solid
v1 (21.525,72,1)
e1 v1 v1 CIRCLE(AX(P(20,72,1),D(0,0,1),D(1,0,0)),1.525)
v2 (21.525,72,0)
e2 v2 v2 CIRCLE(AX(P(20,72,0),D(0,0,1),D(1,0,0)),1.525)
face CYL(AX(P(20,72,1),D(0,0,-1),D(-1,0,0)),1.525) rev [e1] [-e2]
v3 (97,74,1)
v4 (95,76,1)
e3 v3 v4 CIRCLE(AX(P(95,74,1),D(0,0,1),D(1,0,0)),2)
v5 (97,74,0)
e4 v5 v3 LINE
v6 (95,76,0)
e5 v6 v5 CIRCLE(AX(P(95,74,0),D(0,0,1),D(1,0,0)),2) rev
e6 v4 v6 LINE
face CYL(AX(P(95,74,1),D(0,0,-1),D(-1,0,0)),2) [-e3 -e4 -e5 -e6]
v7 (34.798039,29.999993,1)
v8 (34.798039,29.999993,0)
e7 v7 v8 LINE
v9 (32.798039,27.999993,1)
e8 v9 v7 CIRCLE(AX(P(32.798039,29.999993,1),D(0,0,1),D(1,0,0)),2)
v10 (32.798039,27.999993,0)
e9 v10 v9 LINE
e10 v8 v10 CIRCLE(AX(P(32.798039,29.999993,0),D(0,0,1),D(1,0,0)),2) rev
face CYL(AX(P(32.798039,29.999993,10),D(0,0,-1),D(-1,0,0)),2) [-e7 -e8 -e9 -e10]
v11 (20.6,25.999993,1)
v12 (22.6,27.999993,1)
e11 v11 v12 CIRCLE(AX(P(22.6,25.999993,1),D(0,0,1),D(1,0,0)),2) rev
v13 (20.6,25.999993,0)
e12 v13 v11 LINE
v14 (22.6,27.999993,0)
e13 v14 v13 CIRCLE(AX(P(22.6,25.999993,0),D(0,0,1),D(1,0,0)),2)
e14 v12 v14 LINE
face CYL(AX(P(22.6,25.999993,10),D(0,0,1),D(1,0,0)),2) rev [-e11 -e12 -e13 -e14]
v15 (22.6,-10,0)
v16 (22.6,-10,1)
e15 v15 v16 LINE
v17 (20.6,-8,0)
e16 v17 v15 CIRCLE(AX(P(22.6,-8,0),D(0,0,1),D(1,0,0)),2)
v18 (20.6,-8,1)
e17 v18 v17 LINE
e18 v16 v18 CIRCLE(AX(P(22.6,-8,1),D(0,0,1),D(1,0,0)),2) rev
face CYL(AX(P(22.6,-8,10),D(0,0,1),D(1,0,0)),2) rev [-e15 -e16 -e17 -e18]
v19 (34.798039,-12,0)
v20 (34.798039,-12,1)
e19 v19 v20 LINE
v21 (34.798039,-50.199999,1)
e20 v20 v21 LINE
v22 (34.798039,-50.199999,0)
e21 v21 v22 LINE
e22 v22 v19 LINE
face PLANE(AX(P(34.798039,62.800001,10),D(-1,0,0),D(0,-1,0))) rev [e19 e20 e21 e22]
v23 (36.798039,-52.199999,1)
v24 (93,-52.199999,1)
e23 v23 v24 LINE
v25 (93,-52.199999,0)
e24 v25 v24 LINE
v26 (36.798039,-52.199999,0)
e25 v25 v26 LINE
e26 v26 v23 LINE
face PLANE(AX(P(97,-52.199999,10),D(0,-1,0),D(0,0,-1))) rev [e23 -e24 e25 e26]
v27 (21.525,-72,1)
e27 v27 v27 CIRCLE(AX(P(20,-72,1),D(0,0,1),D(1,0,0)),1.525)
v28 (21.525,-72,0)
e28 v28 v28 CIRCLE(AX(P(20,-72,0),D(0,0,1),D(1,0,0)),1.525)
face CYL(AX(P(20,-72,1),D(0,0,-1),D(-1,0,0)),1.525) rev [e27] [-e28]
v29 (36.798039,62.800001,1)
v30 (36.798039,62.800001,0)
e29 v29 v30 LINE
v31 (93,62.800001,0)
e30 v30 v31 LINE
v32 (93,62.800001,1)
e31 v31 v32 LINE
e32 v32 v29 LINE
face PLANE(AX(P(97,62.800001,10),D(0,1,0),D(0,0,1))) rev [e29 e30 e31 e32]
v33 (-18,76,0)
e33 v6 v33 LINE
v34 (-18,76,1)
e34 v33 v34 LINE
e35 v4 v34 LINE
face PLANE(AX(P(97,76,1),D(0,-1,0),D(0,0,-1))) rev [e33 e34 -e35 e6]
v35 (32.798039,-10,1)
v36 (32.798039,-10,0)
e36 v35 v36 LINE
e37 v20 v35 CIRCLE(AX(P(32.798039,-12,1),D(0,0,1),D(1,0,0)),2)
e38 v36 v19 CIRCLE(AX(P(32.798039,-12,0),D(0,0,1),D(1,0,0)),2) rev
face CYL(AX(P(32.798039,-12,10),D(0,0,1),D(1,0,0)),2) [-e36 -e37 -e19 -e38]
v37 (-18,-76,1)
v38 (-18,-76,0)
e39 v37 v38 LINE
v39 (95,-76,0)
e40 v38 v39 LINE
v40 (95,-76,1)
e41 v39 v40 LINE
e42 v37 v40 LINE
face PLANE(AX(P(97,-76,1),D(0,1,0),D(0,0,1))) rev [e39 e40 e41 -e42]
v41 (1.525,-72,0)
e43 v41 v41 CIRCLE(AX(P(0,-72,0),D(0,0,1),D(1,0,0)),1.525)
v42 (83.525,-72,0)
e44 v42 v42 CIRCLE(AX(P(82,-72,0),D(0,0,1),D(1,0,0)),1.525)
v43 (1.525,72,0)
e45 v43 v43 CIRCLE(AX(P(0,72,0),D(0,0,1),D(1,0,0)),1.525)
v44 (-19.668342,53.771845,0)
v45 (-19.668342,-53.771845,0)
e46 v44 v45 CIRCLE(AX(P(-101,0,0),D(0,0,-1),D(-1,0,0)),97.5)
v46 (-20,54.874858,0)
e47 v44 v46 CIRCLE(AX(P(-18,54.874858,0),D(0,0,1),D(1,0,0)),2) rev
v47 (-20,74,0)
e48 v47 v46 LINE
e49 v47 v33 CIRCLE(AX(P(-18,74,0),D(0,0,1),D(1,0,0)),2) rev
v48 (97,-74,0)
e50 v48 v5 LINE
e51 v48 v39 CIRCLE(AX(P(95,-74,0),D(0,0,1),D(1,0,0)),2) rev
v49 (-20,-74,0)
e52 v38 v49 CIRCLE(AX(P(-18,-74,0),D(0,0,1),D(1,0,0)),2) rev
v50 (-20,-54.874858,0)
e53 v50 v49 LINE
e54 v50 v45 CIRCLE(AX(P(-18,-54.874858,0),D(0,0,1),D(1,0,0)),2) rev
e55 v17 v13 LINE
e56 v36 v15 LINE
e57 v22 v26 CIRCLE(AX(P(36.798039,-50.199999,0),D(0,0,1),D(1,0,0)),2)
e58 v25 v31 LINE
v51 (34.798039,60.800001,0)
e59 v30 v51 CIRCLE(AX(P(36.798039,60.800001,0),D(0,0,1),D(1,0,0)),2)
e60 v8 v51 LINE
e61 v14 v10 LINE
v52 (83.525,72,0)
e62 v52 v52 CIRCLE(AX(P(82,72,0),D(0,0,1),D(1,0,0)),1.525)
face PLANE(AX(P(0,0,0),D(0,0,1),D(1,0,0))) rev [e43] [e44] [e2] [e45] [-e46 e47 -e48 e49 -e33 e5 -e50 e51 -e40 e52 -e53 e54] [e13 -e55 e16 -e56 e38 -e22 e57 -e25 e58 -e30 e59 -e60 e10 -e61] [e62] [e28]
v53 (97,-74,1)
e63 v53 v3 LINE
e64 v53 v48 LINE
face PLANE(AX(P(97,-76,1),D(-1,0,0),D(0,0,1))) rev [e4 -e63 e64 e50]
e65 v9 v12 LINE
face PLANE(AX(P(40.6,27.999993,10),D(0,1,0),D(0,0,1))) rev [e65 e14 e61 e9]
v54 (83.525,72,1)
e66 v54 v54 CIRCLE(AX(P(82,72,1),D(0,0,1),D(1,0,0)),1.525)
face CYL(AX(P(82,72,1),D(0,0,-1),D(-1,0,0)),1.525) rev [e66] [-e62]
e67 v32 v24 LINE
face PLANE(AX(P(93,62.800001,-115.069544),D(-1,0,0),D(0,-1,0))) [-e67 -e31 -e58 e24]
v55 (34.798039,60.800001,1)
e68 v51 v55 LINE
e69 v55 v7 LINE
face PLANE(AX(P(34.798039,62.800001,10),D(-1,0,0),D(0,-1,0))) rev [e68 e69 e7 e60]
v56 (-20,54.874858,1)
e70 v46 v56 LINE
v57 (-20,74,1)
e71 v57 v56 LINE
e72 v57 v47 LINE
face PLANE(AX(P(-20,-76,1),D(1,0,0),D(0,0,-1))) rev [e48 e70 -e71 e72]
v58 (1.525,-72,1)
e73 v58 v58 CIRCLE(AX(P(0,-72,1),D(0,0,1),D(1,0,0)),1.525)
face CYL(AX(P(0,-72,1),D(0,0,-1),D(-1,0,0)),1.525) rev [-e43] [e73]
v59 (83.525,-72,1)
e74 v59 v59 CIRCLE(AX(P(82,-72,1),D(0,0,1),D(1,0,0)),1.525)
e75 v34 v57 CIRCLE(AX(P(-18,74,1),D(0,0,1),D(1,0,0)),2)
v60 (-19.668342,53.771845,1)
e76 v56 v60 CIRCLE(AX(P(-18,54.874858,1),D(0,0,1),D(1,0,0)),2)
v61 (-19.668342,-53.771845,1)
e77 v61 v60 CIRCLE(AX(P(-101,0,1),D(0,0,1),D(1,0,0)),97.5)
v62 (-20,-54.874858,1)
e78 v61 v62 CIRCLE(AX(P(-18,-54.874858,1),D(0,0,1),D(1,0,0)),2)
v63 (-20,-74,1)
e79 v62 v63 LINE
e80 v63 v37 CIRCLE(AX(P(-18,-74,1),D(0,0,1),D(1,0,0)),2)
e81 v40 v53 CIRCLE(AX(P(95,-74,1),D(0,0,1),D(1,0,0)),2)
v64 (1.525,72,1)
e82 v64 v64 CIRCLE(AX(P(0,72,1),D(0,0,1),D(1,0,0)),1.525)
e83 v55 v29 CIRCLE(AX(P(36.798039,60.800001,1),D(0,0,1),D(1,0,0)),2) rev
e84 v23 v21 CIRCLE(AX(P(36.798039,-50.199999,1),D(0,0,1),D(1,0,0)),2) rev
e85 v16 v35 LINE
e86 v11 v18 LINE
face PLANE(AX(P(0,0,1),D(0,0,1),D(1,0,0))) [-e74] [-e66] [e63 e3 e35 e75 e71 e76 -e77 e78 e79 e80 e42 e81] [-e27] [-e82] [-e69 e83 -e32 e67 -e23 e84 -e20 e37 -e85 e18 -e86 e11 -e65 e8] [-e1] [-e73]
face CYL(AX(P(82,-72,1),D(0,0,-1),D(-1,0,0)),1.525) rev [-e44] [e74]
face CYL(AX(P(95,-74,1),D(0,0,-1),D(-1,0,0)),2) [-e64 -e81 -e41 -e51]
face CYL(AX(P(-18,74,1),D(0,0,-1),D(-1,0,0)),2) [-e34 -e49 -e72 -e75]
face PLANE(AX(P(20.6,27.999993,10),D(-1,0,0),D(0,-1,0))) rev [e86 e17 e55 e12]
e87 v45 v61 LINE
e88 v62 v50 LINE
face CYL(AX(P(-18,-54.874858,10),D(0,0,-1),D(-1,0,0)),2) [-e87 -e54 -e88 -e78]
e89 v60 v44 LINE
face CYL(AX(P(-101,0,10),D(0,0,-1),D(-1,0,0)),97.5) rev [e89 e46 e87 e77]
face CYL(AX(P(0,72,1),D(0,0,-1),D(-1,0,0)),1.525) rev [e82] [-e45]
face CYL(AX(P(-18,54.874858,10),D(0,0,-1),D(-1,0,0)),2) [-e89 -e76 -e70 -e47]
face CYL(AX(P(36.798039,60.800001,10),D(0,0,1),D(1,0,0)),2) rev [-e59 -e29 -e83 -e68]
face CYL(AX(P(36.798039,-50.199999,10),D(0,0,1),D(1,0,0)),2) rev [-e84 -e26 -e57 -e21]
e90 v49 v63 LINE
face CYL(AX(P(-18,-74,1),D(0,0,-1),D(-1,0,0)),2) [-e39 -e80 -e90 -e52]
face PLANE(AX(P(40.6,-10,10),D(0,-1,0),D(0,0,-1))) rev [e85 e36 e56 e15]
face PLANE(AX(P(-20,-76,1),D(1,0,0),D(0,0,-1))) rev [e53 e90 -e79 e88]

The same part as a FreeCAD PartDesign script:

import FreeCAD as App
import Part
import Sketcher
from FreeCAD import Vector


def edges_at(feature, points):
    """Names of the edges that pass closest to the given points."""
    edges = feature.Shape.Edges
    near = lambda p: min(range(len(edges)), key=lambda i: edges[i].distToShape(Part.Vertex(*p))[0])
    return sorted({f"Edge{near(p) + 1}" for p in points})


def add_polygon(sketch, points):
    """Adds a closed chain of lines whose ends are joined by coincident constraints."""
    first, n = sketch.GeometryCount, len(points)
    for a, b in zip(points, points[1:] + points[:1]):
        sketch.addGeometry(Part.LineSegment(App.Vector(*a, 0), App.Vector(*b, 0)), False)
    for i in range(n):
        sketch.addConstraint(Sketcher.Constraint("Coincident", first + i, 2, first + (i + 1) % n, 1))

doc = App.newDocument("Part")
body = doc.addObject("PartDesign::Body", "Body")

# Sketch on XY plane
sketch1 = body.newObject("Sketcher::SketchObject", "Sketch")
sketch1.AttachmentSupport = (doc.getObject("XY_Plane"), [""])
sketch1.MapMode = "FlatFace"
add_polygon(sketch1, [(-20, 76), (-20, -76), (97, -76), (97, 76)])  # lines 0-3
sketch1.addGeometry(Part.Circle(Vector(0, -72, 0), Vector(0, 0, 1), 1.5), False)  # 4
sketch1.addGeometry(Part.Circle(Vector(20, -72, 0), Vector(0, 0, 1), 1.5), False)  # 5
sketch1.addGeometry(Part.Circle(Vector(82, -72, 0), Vector(0, 0, 1), 1.5), False)  # 6
sketch1.addGeometry(Part.Circle(Vector(0, 72, 0), Vector(0, 0, 1), 1.5), False)  # 7
sketch1.addGeometry(Part.Circle(Vector(20, 72, 0), Vector(0, 0, 1), 1.5), False)  # 8
sketch1.addGeometry(Part.Circle(Vector(82, 72, 0), Vector(0, 0, 1), 1.5), False)  # 9
sketch1.addConstraint([
    Sketcher.Constraint("Vertical", 0),
    Sketcher.Constraint("Horizontal", 1),
    Sketcher.Constraint("Vertical", 2),
    Sketcher.Constraint("Horizontal", 3),
    Sketcher.Constraint("Equal", 4, 5),
    Sketcher.Constraint("Equal", 5, 6),
    Sketcher.Constraint("Equal", 6, 7),
    Sketcher.Constraint("Equal", 7, 8),
    Sketcher.Constraint("Equal", 8, 9),
    Sketcher.Constraint("Symmetric", 4, 3, 7, 3, -1, 1),
    Sketcher.Constraint("Symmetric", 5, 3, 8, 3, -1),
    Sketcher.Constraint("Symmetric", 6, 3, 9, 3, -1),
    Sketcher.Constraint("PointOnObject", 4, 3, -2),
    Sketcher.Constraint("Horizontal", 4, 3, 5, 3),
    Sketcher.Constraint("Horizontal", 5, 3, 6, 3),
    Sketcher.Constraint("Diameter", 4, 3.05),
    Sketcher.Constraint("DistanceX", 1, 1, 1, 2, 117.0),
    Sketcher.Constraint("DistanceY", 0, 2, 0, 1, 152.0),
    Sketcher.Constraint("DistanceY", 4, 3, -1, 1, 72.0),
    Sketcher.Constraint("DistanceX", -1, 1, 5, 3, 20.0),
    Sketcher.Constraint("DistanceX", -1, 1, 6, 3, 82.0),
    Sketcher.Constraint("DistanceX", 0, 2, -1, 1, 20.0),
    Sketcher.Constraint("DistanceY", 0, 2, -1, 1, 76.0),
])
pad1 = body.newObject("PartDesign::Pad", "Pad")
pad1.Profile = sketch1
pad1.Length = 1

# Sketch on XY plane
sketch2 = body.newObject("Sketcher::SketchObject", "Sketch001")
sketch2.AttachmentSupport = (doc.getObject("XY_Plane"), [""])
sketch2.MapMode = "FlatFace"
sketch2.addGeometry(Part.Circle(Vector(-101, 0, 0), Vector(0, 0, 1), 98), False)  # 0
add_polygon(sketch2, [(97, 63), (97, -52), (35, -52), (35, 63)])  # lines 1-4
sketch2.addConstraint([
    Sketcher.Constraint("Vertical", 1),
    Sketcher.Constraint("Horizontal", 2),
    Sketcher.Constraint("Vertical", 3),
    Sketcher.Constraint("Horizontal", 4),
    Sketcher.Constraint("PointOnObject", 0, 3, -1),
    Sketcher.Constraint("Diameter", 0, 195.0),
    Sketcher.Constraint("DistanceY", 1, 2, 1, 1, 115.0),
    Sketcher.Constraint("DistanceX", 0, 3, -1, 1, 101.0),
    Sketcher.Constraint("DistanceX", -1, 1, 1, 2, 97.0),
    Sketcher.Constraint("DistanceY", 1, 2, -1, 1, 52.199999),
    Sketcher.Constraint("DistanceX", 2, 2, 2, 1, 62.201961),
])
pocket1 = body.newObject("PartDesign::Pocket", "Pocket")
pocket1.Profile = sketch2
pocket1.Length = 10
pocket1.Reversed = True

# Sketch on XY plane
sketch3 = body.newObject("Sketcher::SketchObject", "Sketch002")
sketch3.AttachmentSupport = (doc.getObject("XY_Plane"), [""])
sketch3.MapMode = "FlatFace"
add_polygon(sketch3, [(41, 28), (41, -10), (21, -10), (21, 28)])  # lines 0-3
sketch3.addConstraint([
    Sketcher.Constraint("Vertical", 0),
    Sketcher.Constraint("Horizontal", 1),
    Sketcher.Constraint("Vertical", 2),
    Sketcher.Constraint("Horizontal", 3),
    Sketcher.Constraint("DistanceX", 1, 2, 1, 1, 20.0),
    Sketcher.Constraint("DistanceY", 0, 2, -1, 1, 10.0),
    Sketcher.Constraint("DistanceX", -1, 1, 0, 2, 40.6),
    Sketcher.Constraint("DistanceY", 0, 2, 0, 1, 37.999993),
])
pocket2 = body.newObject("PartDesign::Pocket", "Pocket001")
pocket2.Profile = sketch3
pocket2.Length = 10
pocket2.Reversed = True
doc.recompute()

fillet = body.newObject("PartDesign::Fillet", "Fillet")
fillet.Base = (pocket2, edges_at(pocket2, [
    (-20, 54.27, 0.5),
    (-20, -54.27, 0.5),
    (34.798, 62.8, 0.5),
    (34.798, -52.2, 0.5),
    (34.798, -10, 0.5),
    (34.798, 28, 0.5),
    (20.6, 28, 0.5),
    (20.6, -10, 0.5),
    (-20, 76, 0.5),
    (97, 76, 0.5),
    (97, -76, 0.5),
    (-20, -76, 0.5),
]))
fillet.Radius = 2

# Sketch on XY plane
sketch4 = body.newObject("Sketcher::SketchObject", "Sketch003")
sketch4.AttachmentSupport = (doc.getObject("XY_Plane"), [""])
sketch4.MapMode = "FlatFace"
sketch4.AttachmentOffset = App.Placement(Vector(0, 0, 1), App.Rotation())
add_polygon(sketch4, [(93, 62.8), (93, -52.2), (97, -52.2), (97, 62.8)])  # lines 0-3
sketch4.addConstraint([
    Sketcher.Constraint("Vertical", 0),
    Sketcher.Constraint("Horizontal", 1),
    Sketcher.Constraint("Vertical", 2),
    Sketcher.Constraint("Horizontal", 3),
    Sketcher.Constraint("DistanceX", 1, 1, 1, 2, 4.0),
    Sketcher.Constraint("DistanceY", 0, 2, 0, 1, 115.0),
    Sketcher.Constraint("DistanceX", -1, 1, 0, 2, 93.0),
    Sketcher.Constraint("DistanceY", 0, 2, -1, 1, 52.199999),
])
pad2 = body.newObject("PartDesign::Pad", "Pad001")
pad2.Profile = sketch4
pad2.Length = 1
pad2.Reversed = True

doc.recompute()
